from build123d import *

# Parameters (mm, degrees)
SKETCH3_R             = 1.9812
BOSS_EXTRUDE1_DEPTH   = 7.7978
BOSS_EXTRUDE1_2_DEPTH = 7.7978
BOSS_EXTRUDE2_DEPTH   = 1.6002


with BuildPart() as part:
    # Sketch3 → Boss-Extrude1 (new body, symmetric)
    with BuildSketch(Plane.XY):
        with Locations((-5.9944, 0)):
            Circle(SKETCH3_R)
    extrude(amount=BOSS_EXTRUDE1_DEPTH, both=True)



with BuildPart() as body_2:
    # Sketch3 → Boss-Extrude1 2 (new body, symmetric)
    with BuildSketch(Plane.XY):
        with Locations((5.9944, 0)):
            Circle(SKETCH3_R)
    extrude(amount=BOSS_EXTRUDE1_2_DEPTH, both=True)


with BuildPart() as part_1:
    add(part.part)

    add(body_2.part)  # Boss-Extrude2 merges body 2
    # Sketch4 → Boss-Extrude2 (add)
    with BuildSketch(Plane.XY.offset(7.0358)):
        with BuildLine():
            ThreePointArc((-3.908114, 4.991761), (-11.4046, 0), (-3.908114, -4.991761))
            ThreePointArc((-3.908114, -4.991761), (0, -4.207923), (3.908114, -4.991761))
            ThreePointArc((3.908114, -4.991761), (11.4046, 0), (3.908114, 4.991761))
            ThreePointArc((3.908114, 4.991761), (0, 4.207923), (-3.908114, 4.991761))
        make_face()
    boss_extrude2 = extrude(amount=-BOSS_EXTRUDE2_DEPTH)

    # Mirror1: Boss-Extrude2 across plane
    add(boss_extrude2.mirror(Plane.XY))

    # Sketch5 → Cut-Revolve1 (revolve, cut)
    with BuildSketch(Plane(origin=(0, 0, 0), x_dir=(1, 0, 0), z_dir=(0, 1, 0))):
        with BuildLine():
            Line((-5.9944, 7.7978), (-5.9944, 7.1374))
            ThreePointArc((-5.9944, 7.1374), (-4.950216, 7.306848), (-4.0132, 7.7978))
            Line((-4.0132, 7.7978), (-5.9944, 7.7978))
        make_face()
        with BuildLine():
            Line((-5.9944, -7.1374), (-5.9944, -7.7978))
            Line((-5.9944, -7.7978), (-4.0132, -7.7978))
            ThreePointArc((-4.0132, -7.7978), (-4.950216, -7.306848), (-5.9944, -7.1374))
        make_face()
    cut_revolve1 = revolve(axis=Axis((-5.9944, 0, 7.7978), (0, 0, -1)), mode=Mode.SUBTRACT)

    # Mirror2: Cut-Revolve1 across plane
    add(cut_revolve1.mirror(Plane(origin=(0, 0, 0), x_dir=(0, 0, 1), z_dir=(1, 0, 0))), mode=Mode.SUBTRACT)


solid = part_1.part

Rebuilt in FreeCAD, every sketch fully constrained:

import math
import FreeCAD as App
import Part
import Sketcher

V = App.Vector
Q = App.Units.Quantity

doc = App.newDocument("Part")
body = doc.addObject("PartDesign::Body", "Body")

sketch1 = body.newObject("Sketcher::SketchObject", "Sketch")
sketch1.AttachmentSupport = (doc.getObject("XY_Plane"), [""])
sketch1.MapMode = "FlatFace"
sketch1.addGeometry(Part.Circle(V(-6, 0, 0), V(0, 0, 1), 2), False)
sketch1.addConstraint([
    Sketcher.Constraint("PointOnObject", 0, 3, -1),
    Sketcher.Constraint("Diameter", 0, Q("0.156 in")),
    Sketcher.Constraint("DistanceX", 0, 3, -1, 1, Q("0.236 in")),
])
pad1 = body.newObject("PartDesign::Pad", "Pad")
pad1.Profile = sketch1
pad1.Length = Q("0.614 in")
pad1.Midplane = True
body2 = doc.addObject("PartDesign::Body", "Body001")

sketch2 = body2.newObject("Sketcher::SketchObject", "Sketch001")
sketch2.AttachmentSupport = (doc.getObject("XY_Plane001"), [""])
sketch2.MapMode = "FlatFace"
sketch2.addGeometry(Part.Circle(V(6, 0, 0), V(0, 0, 1), 2), False)
sketch2.addConstraint([
    Sketcher.Constraint("PointOnObject", 0, 3, -1),
    Sketcher.Constraint("Diameter", 0, Q("0.156 in")),
    Sketcher.Constraint("DistanceX", -1, 1, 0, 3, Q("0.236 in")),
])
pad2 = body2.newObject("PartDesign::Pad", "Pad001")
pad2.Profile = sketch2
pad2.Length = Q("0.614 in")
pad2.Midplane = True
body.AllowCompound = True
doc.recompute()

boolean = body.newObject("PartDesign::Boolean", "Boolean")
boolean.Type = "Fuse"
boolean.addObjects([body2])

sketch3 = body.newObject("Sketcher::SketchObject", "Sketch002")
sketch3.AttachmentSupport = (doc.getObject("XY_Plane"), [""])
sketch3.MapMode = "FlatFace"
sketch3.AttachmentOffset = App.Placement(V(0, 0, 0.277 * 25.4), App.Rotation())
sketch3.addGeometry([
    Part.ArcOfCircle(Part.Circle(V(-6, 0, 0), V(0, 0, 1), 5), math.radians(67), math.radians(293)),
    Part.ArcOfCircle(Part.Circle(V(0, -14, 0), V(0, 0, 1), 10), math.radians(67), math.radians(113)),
    Part.ArcOfCircle(Part.Circle(V(6, 0, 0), V(0, 0, 1), 5), math.radians(-113), math.radians(113)),
    Part.ArcOfCircle(Part.Circle(V(0, 14, 0), V(0, 0, 1), 10), math.radians(-113), math.radians(-67)),
], False)
sketch3.addConstraint([
    Sketcher.Constraint("Tangent", 0, 2, 1, 2),
    Sketcher.Constraint("Tangent", 1, 1, 2, 1),
    Sketcher.Constraint("Tangent", 2, 2, 3, 2),
    Sketcher.Constraint("Tangent", 3, 1, 0, 1),
    Sketcher.Constraint("Equal", 0, 2),
    Sketcher.Constraint("Equal", 1, 3),
    Sketcher.Constraint("Symmetric", 0, 3, 2, 3, -1, 1),
    Sketcher.Constraint("PointOnObject", 0, 3, -1),
    Sketcher.Constraint("Radius", 0, Q("0.213 in")),
    Sketcher.Constraint("DistanceX", 0, 3, -1, 1, Q("0.236 in")),
    Sketcher.Constraint("Radius", 1, 10.134592),
])
pad3 = body.newObject("PartDesign::Pad", "Pad002")
pad3.Profile = sketch3
pad3.Length = Q("0.063 in")
pad3.Reversed = True
doc.recompute()

mirrored = body.newObject("PartDesign::Mirrored", "Mirrored")
mirrored.Originals = [pad3]
mirrored.MirrorPlane = (doc.getObject("XY_Plane"), [""])
body.Tip = mirrored

sketch4 = body.newObject("Sketcher::SketchObject", "Sketch003")
sketch4.AttachmentSupport = (doc.getObject("XZ_Plane"), [""])
sketch4.MapMode = "FlatFace"
sketch4.addGeometry([
    Part.LineSegment(V(-6, -7.8, 0), V(-6, -7.1, 0)),
    Part.ArcOfCircle(Part.Circle(V(-6, -10.4, 0), V(0, 0, 1), 3.3), math.radians(53), math.radians(90)),
    Part.LineSegment(V(-4, -7.8, 0), V(-6, -7.8, 0)),
    Part.LineSegment(V(-6, 7.1, 0), V(-6, 7.8, 0)),
    Part.LineSegment(V(-6, 7.8, 0), V(-4, 7.8, 0)),
    Part.ArcOfCircle(Part.Circle(V(-6, 10.4, 0), V(0, 0, 1), 3.3), math.radians(-90), math.radians(-53)),
], False)
sketch4.addGeometry(Part.LineSegment(V(-6, 10.4, 0), V(-6, -10.4, 0)), True)
sketch4.addConstraint([
    Sketcher.Constraint("Coincident", 0, 2, 1, 2),
    Sketcher.Constraint("Coincident", 1, 1, 2, 1),
    Sketcher.Constraint("Coincident", 2, 2, 0, 1),
    Sketcher.Constraint("Coincident", 3, 2, 4, 1),
    Sketcher.Constraint("Coincident", 4, 2, 5, 2),
    Sketcher.Constraint("Coincident", 5, 1, 3, 1),
    Sketcher.Constraint("Vertical", 0),
    Sketcher.Constraint("Horizontal", 2),
    Sketcher.Constraint("Vertical", 3),
    Sketcher.Constraint("Horizontal", 4),
    Sketcher.Constraint("Vertical", 6),
    Sketcher.Constraint("Coincident", 6, 1, 5, 3),
    Sketcher.Constraint("Coincident", 6, 2, 1, 3),
    Sketcher.Constraint("Equal", 1, 5),
    Sketcher.Constraint("Symmetric", 2, 2, 3, 2, -1),
    Sketcher.Constraint("Vertical", 5, 3, 0, 2),
    Sketcher.Constraint("Vertical", 1, 1, 4, 2),
    Sketcher.Constraint("Radius", 1, Q("0.1300002 in")),
    Sketcher.Constraint("DistanceX", 2, 2, 2, 1, Q("0.078 in")),
    Sketcher.Constraint("DistanceX", 1, 3, -1, 1, Q("0.2360001 in")),
    Sketcher.Constraint("DistanceY", 1, 3, -1, 1, Q("0.4110002 in")),
])
groove = body.newObject("PartDesign::Groove", "Groove")
groove.Profile = sketch4
groove.ReferenceAxis = (sketch4, ["Axis0"])
groove.Angle = 360
doc.recompute()

mirrored2 = body.newObject("PartDesign::Mirrored", "Mirrored001")
mirrored2.Originals = [groove]
mirrored2.MirrorPlane = (doc.getObject("YZ_Plane"), [""])
body.Tip = mirrored2

doc.recompute()
